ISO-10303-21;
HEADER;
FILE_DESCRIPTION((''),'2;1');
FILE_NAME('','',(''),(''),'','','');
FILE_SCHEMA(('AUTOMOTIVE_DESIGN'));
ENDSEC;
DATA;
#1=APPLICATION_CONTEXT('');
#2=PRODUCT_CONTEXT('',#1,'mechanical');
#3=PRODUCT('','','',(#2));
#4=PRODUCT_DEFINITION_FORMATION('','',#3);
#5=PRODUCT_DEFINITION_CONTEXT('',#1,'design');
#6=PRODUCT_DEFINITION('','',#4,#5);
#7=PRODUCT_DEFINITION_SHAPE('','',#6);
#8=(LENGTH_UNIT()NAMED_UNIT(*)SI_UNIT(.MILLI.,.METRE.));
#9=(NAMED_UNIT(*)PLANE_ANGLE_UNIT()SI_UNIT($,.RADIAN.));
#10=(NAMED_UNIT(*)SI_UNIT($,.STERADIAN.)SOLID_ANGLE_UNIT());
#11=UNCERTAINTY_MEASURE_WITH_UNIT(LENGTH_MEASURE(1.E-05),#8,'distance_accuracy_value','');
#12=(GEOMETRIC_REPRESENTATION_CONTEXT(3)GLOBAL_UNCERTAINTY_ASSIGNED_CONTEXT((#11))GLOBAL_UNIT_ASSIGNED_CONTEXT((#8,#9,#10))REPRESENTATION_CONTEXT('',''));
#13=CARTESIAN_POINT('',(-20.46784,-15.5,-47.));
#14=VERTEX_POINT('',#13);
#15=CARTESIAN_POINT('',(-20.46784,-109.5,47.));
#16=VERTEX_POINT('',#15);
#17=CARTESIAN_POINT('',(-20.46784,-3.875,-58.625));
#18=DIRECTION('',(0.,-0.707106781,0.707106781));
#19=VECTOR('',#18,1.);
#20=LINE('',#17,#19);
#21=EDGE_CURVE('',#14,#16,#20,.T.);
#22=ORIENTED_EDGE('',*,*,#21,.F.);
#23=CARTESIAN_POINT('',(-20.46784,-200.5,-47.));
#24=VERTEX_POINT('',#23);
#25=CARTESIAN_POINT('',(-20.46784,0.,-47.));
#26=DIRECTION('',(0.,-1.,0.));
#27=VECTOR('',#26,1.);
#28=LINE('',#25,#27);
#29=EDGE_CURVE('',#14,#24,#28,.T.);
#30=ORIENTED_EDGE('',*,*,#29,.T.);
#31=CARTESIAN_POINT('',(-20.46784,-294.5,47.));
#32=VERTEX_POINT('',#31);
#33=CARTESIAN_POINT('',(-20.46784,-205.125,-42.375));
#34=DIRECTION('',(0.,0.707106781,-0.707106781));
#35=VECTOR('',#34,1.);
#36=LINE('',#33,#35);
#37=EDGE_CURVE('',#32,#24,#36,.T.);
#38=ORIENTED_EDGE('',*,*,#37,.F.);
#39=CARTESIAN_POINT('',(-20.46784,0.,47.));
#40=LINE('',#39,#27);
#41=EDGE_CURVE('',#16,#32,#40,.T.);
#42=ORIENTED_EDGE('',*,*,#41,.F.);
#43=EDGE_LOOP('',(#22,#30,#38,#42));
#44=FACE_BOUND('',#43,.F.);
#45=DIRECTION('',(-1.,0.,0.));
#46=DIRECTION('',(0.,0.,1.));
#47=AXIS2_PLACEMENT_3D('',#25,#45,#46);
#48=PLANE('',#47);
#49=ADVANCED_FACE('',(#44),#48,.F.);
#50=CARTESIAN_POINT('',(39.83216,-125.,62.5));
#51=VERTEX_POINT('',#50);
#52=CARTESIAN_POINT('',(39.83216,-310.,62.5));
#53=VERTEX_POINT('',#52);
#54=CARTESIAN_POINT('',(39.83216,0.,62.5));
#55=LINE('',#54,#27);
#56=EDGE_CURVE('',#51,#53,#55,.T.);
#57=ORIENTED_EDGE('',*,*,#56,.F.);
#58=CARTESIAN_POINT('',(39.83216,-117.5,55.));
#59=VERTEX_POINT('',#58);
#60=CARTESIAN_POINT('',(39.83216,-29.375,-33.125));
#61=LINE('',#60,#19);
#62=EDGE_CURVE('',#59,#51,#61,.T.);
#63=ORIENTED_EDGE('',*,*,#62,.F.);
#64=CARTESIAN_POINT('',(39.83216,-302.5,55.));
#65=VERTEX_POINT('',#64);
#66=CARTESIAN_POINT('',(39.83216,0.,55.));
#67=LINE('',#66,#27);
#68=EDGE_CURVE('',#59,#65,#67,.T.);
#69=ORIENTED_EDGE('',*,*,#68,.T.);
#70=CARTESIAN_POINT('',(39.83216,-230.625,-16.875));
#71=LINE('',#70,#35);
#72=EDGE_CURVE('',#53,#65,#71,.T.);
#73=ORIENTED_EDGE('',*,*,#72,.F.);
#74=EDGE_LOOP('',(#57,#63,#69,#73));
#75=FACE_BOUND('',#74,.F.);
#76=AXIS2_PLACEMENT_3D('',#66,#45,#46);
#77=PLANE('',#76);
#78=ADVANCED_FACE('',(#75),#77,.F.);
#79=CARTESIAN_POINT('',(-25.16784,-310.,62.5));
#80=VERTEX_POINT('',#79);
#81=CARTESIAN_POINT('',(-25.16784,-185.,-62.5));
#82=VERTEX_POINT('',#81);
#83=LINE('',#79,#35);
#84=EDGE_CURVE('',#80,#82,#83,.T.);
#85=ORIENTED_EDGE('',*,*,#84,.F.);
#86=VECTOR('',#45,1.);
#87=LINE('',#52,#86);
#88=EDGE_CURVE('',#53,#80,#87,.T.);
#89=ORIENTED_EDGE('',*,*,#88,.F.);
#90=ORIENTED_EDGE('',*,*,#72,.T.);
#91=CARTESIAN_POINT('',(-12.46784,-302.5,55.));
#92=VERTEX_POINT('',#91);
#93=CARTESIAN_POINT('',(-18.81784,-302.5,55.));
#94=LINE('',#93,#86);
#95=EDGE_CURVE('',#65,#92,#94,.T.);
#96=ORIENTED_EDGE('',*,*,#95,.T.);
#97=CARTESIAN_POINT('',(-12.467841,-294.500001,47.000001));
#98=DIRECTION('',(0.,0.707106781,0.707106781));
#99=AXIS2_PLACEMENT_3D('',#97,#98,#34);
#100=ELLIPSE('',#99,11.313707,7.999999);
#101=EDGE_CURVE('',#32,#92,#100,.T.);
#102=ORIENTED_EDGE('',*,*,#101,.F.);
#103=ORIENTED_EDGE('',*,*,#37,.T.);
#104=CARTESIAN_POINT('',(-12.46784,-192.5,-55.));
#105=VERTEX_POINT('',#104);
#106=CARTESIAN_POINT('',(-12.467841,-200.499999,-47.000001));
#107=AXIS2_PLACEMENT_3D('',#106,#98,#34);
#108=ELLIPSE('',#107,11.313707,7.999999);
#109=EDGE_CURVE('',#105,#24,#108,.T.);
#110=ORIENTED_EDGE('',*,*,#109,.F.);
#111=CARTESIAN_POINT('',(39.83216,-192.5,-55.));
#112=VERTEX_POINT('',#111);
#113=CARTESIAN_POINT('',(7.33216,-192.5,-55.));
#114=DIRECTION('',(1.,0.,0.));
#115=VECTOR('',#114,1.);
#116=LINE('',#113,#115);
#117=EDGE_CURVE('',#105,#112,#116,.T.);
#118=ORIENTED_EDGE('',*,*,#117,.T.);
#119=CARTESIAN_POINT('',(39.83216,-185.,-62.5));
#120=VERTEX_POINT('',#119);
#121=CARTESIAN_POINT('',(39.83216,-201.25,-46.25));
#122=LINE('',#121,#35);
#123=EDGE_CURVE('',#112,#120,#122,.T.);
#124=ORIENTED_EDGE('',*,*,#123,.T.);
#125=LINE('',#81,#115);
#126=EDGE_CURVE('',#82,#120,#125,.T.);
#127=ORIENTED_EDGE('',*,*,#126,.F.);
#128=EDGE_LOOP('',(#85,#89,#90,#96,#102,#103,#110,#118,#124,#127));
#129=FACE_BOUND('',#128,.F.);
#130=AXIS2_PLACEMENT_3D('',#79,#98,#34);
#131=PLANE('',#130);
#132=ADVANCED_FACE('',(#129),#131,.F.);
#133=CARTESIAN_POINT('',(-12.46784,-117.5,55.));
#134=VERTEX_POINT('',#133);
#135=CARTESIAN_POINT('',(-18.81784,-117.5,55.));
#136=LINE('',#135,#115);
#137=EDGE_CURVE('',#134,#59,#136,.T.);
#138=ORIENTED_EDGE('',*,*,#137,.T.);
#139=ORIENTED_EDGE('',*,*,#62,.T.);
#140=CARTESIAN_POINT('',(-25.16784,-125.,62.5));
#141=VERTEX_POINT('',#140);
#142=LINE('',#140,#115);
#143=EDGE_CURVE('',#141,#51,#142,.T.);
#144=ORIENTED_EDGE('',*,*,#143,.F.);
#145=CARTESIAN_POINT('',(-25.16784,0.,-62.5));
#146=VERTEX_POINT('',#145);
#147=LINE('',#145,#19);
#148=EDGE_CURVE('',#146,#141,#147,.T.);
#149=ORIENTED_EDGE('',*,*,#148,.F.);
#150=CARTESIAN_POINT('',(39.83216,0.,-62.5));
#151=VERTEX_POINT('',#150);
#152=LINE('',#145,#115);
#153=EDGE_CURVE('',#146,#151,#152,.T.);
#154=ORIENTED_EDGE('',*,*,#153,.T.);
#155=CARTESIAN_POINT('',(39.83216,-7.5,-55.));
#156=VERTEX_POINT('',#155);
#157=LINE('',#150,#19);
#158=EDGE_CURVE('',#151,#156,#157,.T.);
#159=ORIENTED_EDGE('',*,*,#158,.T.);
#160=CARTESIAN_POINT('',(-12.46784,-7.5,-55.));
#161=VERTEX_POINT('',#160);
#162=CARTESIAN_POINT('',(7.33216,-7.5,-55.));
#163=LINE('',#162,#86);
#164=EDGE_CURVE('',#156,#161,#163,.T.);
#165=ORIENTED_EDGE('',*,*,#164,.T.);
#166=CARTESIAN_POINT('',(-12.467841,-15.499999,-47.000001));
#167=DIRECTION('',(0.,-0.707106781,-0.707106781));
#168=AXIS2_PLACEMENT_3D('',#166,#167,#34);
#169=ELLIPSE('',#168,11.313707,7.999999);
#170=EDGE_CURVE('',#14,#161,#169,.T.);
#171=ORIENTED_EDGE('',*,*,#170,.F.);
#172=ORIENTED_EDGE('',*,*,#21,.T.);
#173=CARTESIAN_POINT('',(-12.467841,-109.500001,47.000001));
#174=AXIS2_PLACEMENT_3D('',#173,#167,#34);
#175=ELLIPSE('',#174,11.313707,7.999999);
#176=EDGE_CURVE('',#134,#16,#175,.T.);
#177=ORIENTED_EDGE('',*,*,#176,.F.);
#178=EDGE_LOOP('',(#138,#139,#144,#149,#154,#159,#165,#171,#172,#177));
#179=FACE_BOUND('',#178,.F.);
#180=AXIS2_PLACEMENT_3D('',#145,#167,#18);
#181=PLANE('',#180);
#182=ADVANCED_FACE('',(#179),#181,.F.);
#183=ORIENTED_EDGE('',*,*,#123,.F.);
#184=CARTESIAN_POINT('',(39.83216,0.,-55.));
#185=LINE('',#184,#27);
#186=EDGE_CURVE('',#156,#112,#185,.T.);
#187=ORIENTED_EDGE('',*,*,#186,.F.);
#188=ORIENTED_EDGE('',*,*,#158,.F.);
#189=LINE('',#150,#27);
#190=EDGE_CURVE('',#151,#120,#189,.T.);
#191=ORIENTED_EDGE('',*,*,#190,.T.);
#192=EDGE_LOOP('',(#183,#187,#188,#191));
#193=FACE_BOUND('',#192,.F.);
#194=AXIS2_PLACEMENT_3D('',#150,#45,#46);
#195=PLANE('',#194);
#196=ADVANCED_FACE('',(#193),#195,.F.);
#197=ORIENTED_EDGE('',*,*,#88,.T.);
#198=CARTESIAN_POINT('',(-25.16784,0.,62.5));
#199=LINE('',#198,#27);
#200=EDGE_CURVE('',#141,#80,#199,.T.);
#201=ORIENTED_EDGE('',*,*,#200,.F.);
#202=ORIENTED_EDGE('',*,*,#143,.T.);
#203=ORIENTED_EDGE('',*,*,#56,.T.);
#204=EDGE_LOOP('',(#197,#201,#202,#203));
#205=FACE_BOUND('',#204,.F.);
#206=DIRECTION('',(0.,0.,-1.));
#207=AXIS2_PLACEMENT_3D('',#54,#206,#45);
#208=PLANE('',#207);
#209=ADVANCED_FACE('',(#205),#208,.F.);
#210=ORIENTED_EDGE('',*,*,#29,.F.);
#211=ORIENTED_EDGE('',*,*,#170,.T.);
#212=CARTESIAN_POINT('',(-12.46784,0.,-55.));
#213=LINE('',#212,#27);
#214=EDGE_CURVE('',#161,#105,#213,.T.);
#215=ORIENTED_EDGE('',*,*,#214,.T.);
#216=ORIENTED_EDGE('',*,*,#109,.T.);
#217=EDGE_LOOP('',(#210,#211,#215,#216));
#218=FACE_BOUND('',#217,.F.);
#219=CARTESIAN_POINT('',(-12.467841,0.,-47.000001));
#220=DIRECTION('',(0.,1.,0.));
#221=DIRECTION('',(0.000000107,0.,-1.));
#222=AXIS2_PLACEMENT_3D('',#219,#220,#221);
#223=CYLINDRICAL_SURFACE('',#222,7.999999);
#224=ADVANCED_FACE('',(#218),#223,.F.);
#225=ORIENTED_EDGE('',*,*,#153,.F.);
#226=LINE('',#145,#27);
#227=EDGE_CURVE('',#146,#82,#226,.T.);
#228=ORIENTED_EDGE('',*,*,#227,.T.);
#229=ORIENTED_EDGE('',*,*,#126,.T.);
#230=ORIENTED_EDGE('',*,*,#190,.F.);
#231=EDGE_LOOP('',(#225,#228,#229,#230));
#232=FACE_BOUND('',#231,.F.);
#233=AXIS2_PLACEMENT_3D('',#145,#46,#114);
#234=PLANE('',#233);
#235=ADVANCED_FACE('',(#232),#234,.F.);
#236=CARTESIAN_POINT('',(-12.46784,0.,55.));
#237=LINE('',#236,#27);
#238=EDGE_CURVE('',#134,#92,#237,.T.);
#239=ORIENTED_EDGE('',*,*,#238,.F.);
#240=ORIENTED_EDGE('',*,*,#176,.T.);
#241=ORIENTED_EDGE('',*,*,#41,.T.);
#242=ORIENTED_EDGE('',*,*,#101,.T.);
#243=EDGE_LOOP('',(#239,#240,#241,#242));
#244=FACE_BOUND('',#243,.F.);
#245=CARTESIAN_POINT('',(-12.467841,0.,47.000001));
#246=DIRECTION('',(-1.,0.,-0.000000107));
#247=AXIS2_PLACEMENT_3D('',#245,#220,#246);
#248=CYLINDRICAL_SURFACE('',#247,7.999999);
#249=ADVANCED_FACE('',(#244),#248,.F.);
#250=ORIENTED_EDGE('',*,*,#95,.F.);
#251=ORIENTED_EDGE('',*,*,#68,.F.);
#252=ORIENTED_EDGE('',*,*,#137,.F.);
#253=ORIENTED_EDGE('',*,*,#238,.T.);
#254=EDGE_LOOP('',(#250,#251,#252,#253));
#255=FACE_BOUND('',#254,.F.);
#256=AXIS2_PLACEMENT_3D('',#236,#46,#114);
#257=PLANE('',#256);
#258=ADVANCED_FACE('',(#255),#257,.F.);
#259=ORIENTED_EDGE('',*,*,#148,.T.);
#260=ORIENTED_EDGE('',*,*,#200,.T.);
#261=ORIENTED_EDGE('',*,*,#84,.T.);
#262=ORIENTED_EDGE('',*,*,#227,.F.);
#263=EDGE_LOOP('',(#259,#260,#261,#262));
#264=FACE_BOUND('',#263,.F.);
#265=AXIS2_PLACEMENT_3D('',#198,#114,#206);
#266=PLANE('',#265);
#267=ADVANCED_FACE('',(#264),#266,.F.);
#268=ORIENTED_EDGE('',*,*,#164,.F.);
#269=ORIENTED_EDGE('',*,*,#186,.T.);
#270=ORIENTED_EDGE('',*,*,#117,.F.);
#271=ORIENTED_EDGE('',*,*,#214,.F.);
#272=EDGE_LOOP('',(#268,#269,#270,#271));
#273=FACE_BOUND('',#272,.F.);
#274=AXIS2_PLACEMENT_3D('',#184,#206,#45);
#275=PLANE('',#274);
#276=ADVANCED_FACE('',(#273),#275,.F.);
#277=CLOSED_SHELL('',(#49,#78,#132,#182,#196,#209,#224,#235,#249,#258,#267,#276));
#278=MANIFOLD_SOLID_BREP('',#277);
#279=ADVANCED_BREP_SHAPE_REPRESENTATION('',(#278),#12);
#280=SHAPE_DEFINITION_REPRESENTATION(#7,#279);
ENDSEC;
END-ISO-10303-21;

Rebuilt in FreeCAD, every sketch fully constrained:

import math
import FreeCAD as App
import Part
import Sketcher

V = App.Vector


def add_polygon(sketch, points):
    """Adds a closed chain of lines whose ends are joined by coincident constraints."""
    first, n = sketch.GeometryCount, len(points)
    for a, b in zip(points, points[1:] + points[:1]):
        sketch.addGeometry(Part.LineSegment(App.Vector(*a, 0), App.Vector(*b, 0)), False)
    for i in range(n):
        sketch.addConstraint(Sketcher.Constraint("Coincident", first + i, 2, first + (i + 1) % n, 1))

doc = App.newDocument("Part")
body = doc.addObject("PartDesign::Body", "Body")

sketch1 = body.newObject("Sketcher::SketchObject", "Sketch")
sketch1.AttachmentSupport = (doc.getObject("XZ_Plane"), [""])
sketch1.MapMode = "FlatFace"
sketch1.addGeometry(Part.LineSegment(V(-25, 62, 0), V(-25, -62, 0)), False)
sketch1.addGeometry(Part.LineSegment(V(-25, -62, 0), V(40, -62, 0)), False)
sketch1.addGeometry(Part.LineSegment(V(40, -62, 0), V(40, -55, 0)), False)
sketch1.addGeometry(Part.LineSegment(V(40, -55, 0), V(-12, -55, 0)), False)
sketch1.addGeometry(Part.ArcOfCircle(Part.Circle(V(-12, -47, 0), V(0, 0, 1), 8), math.radians(180), math.radians(270)), False)
sketch1.addGeometry(Part.LineSegment(V(-20, -47, 0), V(-20, 47, 0)), False)
sketch1.addGeometry(Part.ArcOfCircle(Part.Circle(V(-12, 47, 0), V(0, 0, 1), 8), math.radians(90), math.radians(180)), False)
sketch1.addGeometry(Part.LineSegment(V(-12, 55, 0), V(40, 55, 0)), False)
sketch1.addGeometry(Part.LineSegment(V(40, 55, 0), V(40, 62, 0)), False)
sketch1.addGeometry(Part.LineSegment(V(40, 62, 0), V(-25, 62, 0)), False)
sketch1.addConstraint(Sketcher.Constraint("Coincident", 0, 2, 1, 1))
sketch1.addConstraint(Sketcher.Constraint("Coincident", 1, 2, 2, 1))
sketch1.addConstraint(Sketcher.Constraint("Coincident", 2, 2, 3, 1))
sketch1.addConstraint(Sketcher.Constraint("Tangent", 3, 2, 4, 2))
sketch1.addConstraint(Sketcher.Constraint("Tangent", 4, 1, 5, 1))
sketch1.addConstraint(Sketcher.Constraint("Tangent", 5, 2, 6, 2))
sketch1.addConstraint(Sketcher.Constraint("Tangent", 6, 1, 7, 1))
sketch1.addConstraint(Sketcher.Constraint("Coincident", 7, 2, 8, 1))
sketch1.addConstraint(Sketcher.Constraint("Coincident", 8, 2, 9, 1))
sketch1.addConstraint(Sketcher.Constraint("Coincident", 9, 2, 0, 1))
sketch1.addConstraint(Sketcher.Constraint("Vertical", 0))
sketch1.addConstraint(Sketcher.Constraint("Horizontal", 1))
sketch1.addConstraint(Sketcher.Constraint("Vertical", 2))
sketch1.addConstraint(Sketcher.Constraint("Horizontal", 3))
sketch1.addConstraint(Sketcher.Constraint("Vertical", 5))
sketch1.addConstraint(Sketcher.Constraint("Horizontal", 7))
sketch1.addConstraint(Sketcher.Constraint("Vertical", 8))
sketch1.addConstraint(Sketcher.Constraint("Horizontal", 9))
sketch1.addConstraint(Sketcher.Constraint("Equal", 4, 6))
sketch1.addConstraint(Sketcher.Constraint("Symmetric", 2, 2, 7, 2, -1))
sketch1.addConstraint(Sketcher.Constraint("Equal", 2, 8))
sketch1.addConstraint(Sketcher.Constraint("Radius", 4, 7.999999))
sketch1.addConstraint(Sketcher.Constraint("DistanceX", 1, 1, 1, 2, 65.0))
sketch1.addConstraint(Sketcher.Constraint("DistanceY", 0, 2, 0, 1, 125.0))
sketch1.addConstraint(Sketcher.Constraint("DistanceY", 5, 1, 5, 2, 94.0))
sketch1.addConstraint(Sketcher.Constraint("DistanceX", 3, 2, 3, 1, 52.3))
sketch1.addConstraint(Sketcher.Constraint("DistanceX", 4, 3, -1, 1, 12.467841))
pad1 = body.newObject("PartDesign::Pad", "Pad")
pad1.Profile = sketch1
pad1.Length = 310

sketch2 = body.newObject("Sketcher::SketchObject", "Sketch001")
sketch2.AttachmentSupport = (doc.getObject("YZ_Plane"), [""])
sketch2.MapMode = "FlatFace"
sketch2.AttachmentOffset = App.Placement(V(0, 0, -25.16784), App.Rotation())
add_polygon(sketch2, [(-125, 62), (0, 62), (0, -62)])
add_polygon(sketch2, [(-310, -62), (-310, 62), (-185, -62)])
sketch2.addConstraint(Sketcher.Constraint("Horizontal", 0))
sketch2.addConstraint(Sketcher.Constraint("Vertical", 1))
sketch2.addConstraint(Sketcher.Constraint("Vertical", 3))
sketch2.addConstraint(Sketcher.Constraint("Horizontal", 5))
sketch2.addConstraint(Sketcher.Constraint("Symmetric", 0, 2, 1, 2, -1, 1))
sketch2.addConstraint(Sketcher.Constraint("Parallel", 2, 4))
sketch2.addConstraint(Sketcher.Constraint("Horizontal", 2, 2, 3, 2))
sketch2.addConstraint(Sketcher.Constraint("Horizontal", 1, 2, 4, 2))
sketch2.addConstraint(Sketcher.Constraint("Equal", 5, 1))
sketch2.addConstraint(Sketcher.Constraint("DistanceX", 0, 1, 0, 2, 125.0))
sketch2.addConstraint(Sketcher.Constraint("DistanceX", 3, 2, -1, 1, 310.0))
pocket1 = body.newObject("PartDesign::Pocket", "Pocket")
pocket1.Profile = sketch2
pocket1.Type = "ThroughAll"
pocket1.Reversed = True

doc.recompute()
